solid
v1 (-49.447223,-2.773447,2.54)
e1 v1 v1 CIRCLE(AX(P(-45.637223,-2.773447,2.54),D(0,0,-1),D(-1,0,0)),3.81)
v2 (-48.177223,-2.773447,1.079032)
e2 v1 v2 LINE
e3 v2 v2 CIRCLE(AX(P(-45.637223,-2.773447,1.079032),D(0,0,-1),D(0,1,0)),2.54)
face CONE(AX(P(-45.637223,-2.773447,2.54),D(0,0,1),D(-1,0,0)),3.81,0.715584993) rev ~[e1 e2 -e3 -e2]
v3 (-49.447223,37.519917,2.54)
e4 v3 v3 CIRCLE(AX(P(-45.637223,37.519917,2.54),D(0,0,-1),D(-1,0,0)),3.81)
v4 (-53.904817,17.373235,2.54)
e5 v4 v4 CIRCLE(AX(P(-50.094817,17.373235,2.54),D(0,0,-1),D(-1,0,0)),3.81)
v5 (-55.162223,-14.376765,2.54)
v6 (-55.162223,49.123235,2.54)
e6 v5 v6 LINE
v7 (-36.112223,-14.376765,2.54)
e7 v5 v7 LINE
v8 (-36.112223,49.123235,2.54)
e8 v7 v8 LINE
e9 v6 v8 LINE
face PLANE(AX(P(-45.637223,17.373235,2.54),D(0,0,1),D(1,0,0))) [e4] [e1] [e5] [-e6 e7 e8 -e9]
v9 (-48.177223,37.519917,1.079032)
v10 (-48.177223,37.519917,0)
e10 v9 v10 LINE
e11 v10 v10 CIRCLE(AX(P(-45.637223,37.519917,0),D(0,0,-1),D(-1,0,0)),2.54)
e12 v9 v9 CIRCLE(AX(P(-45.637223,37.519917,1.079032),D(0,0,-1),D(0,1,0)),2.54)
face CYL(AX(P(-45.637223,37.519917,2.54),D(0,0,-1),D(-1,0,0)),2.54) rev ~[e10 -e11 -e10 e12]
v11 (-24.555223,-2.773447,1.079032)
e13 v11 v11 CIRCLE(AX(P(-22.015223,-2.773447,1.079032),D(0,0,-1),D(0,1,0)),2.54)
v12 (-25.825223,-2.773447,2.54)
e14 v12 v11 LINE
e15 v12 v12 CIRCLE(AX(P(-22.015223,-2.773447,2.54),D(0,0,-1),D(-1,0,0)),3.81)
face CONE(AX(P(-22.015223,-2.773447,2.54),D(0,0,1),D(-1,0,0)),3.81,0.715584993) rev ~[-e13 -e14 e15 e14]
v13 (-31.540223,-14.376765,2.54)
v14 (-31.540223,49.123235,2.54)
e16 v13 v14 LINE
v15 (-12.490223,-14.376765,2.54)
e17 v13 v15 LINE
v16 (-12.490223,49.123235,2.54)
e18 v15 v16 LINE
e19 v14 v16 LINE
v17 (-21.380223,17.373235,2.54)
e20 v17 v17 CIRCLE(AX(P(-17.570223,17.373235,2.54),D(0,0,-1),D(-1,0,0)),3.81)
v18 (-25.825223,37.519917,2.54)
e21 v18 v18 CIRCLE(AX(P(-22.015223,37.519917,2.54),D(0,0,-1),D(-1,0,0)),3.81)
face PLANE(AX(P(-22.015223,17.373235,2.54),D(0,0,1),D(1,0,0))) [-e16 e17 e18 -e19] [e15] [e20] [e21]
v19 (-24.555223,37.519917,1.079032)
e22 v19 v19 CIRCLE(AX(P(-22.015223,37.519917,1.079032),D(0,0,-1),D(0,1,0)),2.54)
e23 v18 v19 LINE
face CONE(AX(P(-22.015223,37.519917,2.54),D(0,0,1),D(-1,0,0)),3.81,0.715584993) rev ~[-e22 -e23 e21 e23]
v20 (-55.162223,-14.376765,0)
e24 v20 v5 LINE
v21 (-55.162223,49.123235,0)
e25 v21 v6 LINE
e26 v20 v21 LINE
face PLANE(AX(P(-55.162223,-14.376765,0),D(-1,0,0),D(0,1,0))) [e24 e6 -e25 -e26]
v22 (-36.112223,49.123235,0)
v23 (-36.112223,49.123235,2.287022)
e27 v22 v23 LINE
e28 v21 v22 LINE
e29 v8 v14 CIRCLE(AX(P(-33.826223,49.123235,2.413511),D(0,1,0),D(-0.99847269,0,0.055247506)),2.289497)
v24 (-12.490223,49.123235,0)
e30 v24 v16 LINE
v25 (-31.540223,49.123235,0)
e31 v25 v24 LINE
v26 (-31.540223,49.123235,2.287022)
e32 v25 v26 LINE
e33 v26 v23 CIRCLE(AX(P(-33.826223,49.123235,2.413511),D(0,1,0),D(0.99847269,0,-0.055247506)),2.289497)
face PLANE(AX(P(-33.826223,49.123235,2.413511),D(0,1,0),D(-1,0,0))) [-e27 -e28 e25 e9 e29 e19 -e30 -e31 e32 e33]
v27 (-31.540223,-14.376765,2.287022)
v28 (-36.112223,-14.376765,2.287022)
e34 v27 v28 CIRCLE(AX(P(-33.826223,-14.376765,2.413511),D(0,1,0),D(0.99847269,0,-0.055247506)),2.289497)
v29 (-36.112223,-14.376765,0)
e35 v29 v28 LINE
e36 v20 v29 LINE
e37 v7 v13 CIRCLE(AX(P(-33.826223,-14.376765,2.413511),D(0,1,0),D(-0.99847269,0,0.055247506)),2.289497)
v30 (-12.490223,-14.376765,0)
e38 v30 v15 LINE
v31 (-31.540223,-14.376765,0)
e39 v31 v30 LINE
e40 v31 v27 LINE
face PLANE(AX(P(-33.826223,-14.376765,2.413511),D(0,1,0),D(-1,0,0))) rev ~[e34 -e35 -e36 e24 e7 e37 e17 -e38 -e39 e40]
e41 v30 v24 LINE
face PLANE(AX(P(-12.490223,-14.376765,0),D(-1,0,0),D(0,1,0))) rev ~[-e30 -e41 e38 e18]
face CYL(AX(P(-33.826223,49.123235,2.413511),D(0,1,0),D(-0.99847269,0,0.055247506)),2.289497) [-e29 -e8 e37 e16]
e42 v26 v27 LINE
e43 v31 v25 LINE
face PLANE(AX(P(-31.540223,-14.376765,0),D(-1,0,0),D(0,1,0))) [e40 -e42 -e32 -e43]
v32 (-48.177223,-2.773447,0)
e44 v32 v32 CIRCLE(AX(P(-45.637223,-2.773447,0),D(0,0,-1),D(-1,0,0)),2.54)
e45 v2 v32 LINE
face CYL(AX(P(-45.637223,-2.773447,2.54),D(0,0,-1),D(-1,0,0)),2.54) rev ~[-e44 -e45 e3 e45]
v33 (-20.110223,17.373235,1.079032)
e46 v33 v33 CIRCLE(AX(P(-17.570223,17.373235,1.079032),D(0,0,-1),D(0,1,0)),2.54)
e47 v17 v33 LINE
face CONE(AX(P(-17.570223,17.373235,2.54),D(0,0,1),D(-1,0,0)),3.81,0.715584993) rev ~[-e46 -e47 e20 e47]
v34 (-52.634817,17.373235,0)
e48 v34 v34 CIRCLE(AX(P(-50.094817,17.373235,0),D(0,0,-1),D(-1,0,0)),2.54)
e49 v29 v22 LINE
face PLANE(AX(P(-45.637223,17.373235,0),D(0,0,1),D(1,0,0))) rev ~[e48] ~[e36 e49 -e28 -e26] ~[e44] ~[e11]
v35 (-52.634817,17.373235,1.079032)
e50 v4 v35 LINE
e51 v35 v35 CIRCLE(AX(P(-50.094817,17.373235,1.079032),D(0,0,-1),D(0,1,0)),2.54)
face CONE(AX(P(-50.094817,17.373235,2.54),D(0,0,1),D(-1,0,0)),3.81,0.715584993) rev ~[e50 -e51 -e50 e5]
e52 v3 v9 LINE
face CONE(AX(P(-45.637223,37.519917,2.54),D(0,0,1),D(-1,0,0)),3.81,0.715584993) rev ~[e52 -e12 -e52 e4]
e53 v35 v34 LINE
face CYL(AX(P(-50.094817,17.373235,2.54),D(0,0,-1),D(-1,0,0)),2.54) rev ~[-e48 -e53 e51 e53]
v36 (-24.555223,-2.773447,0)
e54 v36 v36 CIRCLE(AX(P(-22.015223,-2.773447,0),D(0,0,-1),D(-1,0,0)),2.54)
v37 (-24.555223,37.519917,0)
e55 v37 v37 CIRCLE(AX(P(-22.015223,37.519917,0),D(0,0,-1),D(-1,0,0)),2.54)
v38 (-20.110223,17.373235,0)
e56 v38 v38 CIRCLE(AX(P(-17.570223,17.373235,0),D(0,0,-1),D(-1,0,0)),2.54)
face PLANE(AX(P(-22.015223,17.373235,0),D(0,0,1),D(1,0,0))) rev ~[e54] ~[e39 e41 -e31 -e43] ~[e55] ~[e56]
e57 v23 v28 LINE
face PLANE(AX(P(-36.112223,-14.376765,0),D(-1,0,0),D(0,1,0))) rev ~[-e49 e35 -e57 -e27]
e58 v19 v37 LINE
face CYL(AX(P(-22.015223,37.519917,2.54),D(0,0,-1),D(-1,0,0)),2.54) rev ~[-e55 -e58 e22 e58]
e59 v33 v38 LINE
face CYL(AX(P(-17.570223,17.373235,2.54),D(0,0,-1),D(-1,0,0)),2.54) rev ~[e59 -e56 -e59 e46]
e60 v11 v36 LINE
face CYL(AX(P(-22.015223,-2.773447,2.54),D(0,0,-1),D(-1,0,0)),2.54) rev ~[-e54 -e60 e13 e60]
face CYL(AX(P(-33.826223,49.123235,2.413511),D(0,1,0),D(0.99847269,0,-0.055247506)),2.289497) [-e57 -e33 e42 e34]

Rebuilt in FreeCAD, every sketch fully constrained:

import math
import FreeCAD as App
import Part
import Sketcher
from FreeCAD import Vector
Q = App.Units.Quantity


def add_polygon(sketch, points):
    """Adds a closed chain of lines whose ends are joined by coincident constraints."""
    first, n = sketch.GeometryCount, len(points)
    for a, b in zip(points, points[1:] + points[:1]):
        sketch.addGeometry(Part.LineSegment(App.Vector(*a, 0), App.Vector(*b, 0)), False)
    for i in range(n):
        sketch.addConstraint(Sketcher.Constraint("Coincident", first + i, 2, first + (i + 1) % n, 1))

doc = App.newDocument("Part")
body = doc.addObject("PartDesign::Body", "Body")

sketch1 = doc.addObject("Sketcher::SketchObject", "Sketch")
body.addObject(sketch1)
sketch1.AttachmentSupport = (doc.XY_Plane, [""])
sketch1.MapMode = "FlatFace"
add_polygon(sketch1, [(-55.162223, 49.123235), (-55.162223, -14.376765), (-36.112223, -14.376765), (-36.112223, 49.123235)])
sketch1.addConstraint([
    Sketcher.Constraint("Vertical", 0),
    Sketcher.Constraint("Horizontal", 1),
    Sketcher.Constraint("Vertical", 2),
    Sketcher.Constraint("Horizontal", 3),
    Sketcher.Constraint("DistanceY", 0, 2, 0, 1, Q("2.5 in")),
    Sketcher.Constraint("DistanceX", 1, 1, 1, 2, Q("0.75 in")),
    Sketcher.Constraint("DistanceX", 0, 2, -1, 1, 55.162223),
    Sketcher.Constraint("DistanceY", 0, 2, -1, 1, 14.376765),
])
pad1 = doc.addObject("PartDesign::Pad", "Pad")
body.addObject(pad1)
pad1.Profile = sketch1
pad1.Length = Q("0.1 in")
body2 = doc.addObject("PartDesign::Body", "Body001")

sketch2 = doc.addObject("Sketcher::SketchObject", "Sketch001")
body2.addObject(sketch2)
sketch2.AttachmentSupport = (doc.getObject("XY_Plane001"), [""])
sketch2.MapMode = "FlatFace"
add_polygon(sketch2, [(-31.540223, 49.123235), (-31.540223, -14.376765), (-12.490223, -14.376765), (-12.490223, 49.123235)])
sketch2.addConstraint([
    Sketcher.Constraint("Vertical", 0),
    Sketcher.Constraint("Horizontal", 1),
    Sketcher.Constraint("Vertical", 2),
    Sketcher.Constraint("Horizontal", 3),
    Sketcher.Constraint("DistanceY", 0, 2, 0, 1, Q("2.5 in")),
    Sketcher.Constraint("DistanceX", 1, 1, 1, 2, Q("0.75 in")),
    Sketcher.Constraint("DistanceX", 0, 2, -1, 1, 31.540223),
    Sketcher.Constraint("DistanceY", 0, 2, -1, 1, 14.376765),
])
pad2 = doc.addObject("PartDesign::Pad", "Pad001")
body2.addObject(pad2)
pad2.Profile = sketch2
pad2.Length = Q("0.1 in")
body.AllowCompound = True
doc.recompute()

boolean = doc.addObject("PartDesign::Boolean", "Boolean")
body.addObject(boolean)
boolean.Type = "Fuse"
boolean.addObjects([body2])

sketch3 = doc.addObject("Sketcher::SketchObject", "Sketch002")
body.addObject(sketch3)
sketch3.AttachmentSupport = (doc.XZ_Plane, [""])
sketch3.MapMode = "FlatFace"
sketch3.AttachmentOffset = App.Placement(Vector(0, 0, -49.123235), App.Rotation())
sketch3.addGeometry([
    Part.LineSegment(Vector(-31.540223, 2.54, 0), Vector(-31.540223, 2.287022, 0)),
    Part.ArcOfCircle(Part.Circle(Vector(-33.826223, 2.413511, 0), Vector(0, 0, 1), 2.289497), math.radians(-176.832939), math.radians(-3.167061)),
    Part.LineSegment(Vector(-36.112223, 2.287022, 0), Vector(-36.112223, 2.54, 0)),
    Part.ArcOfCircle(Part.Circle(Vector(-33.826223, 2.413511, 0), Vector(0, 0, 1), 2.289497), math.radians(3.167061), math.radians(176.832939)),
], False)
sketch3.addConstraint([
    Sketcher.Constraint("Coincident", 0, 2, 1, 2),
    Sketcher.Constraint("Coincident", 1, 1, 2, 1),
    Sketcher.Constraint("Coincident", 2, 2, 3, 2),
    Sketcher.Constraint("Coincident", 3, 1, 0, 1),
    Sketcher.Constraint("Vertical", 0),
    Sketcher.Constraint("Vertical", 2),
    Sketcher.Constraint("Coincident", 3, 3, 1, 3),
    Sketcher.Constraint("Equal", 1, 3),
    Sketcher.Constraint("Horizontal", 0, 2, 1, 1),
    Sketcher.Constraint("DistanceY", -1, 1, 2, 2, Q("0.1 in")),
    Sketcher.Constraint("DistanceX", 1, 3, 0, 2, Q("0.09 in")),
    Sketcher.Constraint("Radius", 1, 2.289497),
    Sketcher.Constraint("DistanceX", 1, 3, -1, 1, 33.826223),
])
pad3 = doc.addObject("PartDesign::Pad", "Pad002")
body.addObject(pad3)
pad3.Profile = sketch3
pad3.Length = Q("2.5 in")

sketch4 = doc.addObject("Sketcher::SketchObject", "Sketch003")
body.addObject(sketch4)
sketch4.AttachmentSupport = (doc.XY_Plane, [""])
sketch4.MapMode = "FlatFace"
sketch4.AttachmentOffset = App.Placement(Vector(0, 0, 0.1 * 25.4), App.Rotation())
sketch4.addGeometry([
    Part.Circle(Vector(-45.637223, -2.773447, 0), Vector(0, 0, 1), 2.54),
    Part.Circle(Vector(-22.015223, -2.773447, 0), Vector(0, 0, 1), 2.54),
    Part.Circle(Vector(-17.570223, 17.373235, 0), Vector(0, 0, 1), 2.54),
    Part.Circle(Vector(-50.094817, 17.373235, 0), Vector(0, 0, 1), 2.54),
    Part.Circle(Vector(-45.637223, 37.519917, 0), Vector(0, 0, 1), 2.54),
    Part.Circle(Vector(-22.015223, 37.519917, 0), Vector(0, 0, 1), 2.54),
], False)
sketch4.addConstraint([
    Sketcher.Constraint("Equal", 0, 1),
    Sketcher.Constraint("Equal", 1, 2),
    Sketcher.Constraint("Equal", 2, 3),
    Sketcher.Constraint("Equal", 3, 4),
    Sketcher.Constraint("Equal", 4, 5),
    Sketcher.Constraint("Horizontal", 0, 3, 1, 3),
    Sketcher.Constraint("Horizontal", 2, 3, 3, 3),
    Sketcher.Constraint("Horizontal", 4, 3, 5, 3),
    Sketcher.Constraint("Vertical", 0, 3, 4, 3),
    Sketcher.Constraint("Vertical", 1, 3, 5, 3),
    Sketcher.Constraint("Diameter", 0, Q("0.2 in")),
    Sketcher.Constraint("DistanceX", 0, 3, 1, 3, Q("0.93 in")),
    Sketcher.Constraint("DistanceX", 1, 3, 2, 3, Q("0.175 in")),
    Sketcher.Constraint("DistanceX", 0, 3, -1, 1, 45.637223),
    Sketcher.Constraint("DistanceY", 0, 3, -1, 1, 2.773447),
    Sketcher.Constraint("DistanceY", -1, 1, 2, 3, 17.373235),
    Sketcher.Constraint("DistanceX", 3, 3, -1, 1, 50.094817),
    Sketcher.Constraint("DistanceY", -1, 1, 4, 3, 37.519917),
])
doc.recompute()
hole = doc.addObject("PartDesign::Hole", "Hole")
body.addObject(hole)
hole.Profile = sketch4
hole.ThreadType = "None"
hole.Diameter = Q("0.2 in")
hole.DepthType = "ThroughAll"
hole.HoleCutType = "Countersink"
hole.HoleCutDiameter = Q("0.3 in")
hole.HoleCutCountersinkAngle = 82

doc.recompute()
